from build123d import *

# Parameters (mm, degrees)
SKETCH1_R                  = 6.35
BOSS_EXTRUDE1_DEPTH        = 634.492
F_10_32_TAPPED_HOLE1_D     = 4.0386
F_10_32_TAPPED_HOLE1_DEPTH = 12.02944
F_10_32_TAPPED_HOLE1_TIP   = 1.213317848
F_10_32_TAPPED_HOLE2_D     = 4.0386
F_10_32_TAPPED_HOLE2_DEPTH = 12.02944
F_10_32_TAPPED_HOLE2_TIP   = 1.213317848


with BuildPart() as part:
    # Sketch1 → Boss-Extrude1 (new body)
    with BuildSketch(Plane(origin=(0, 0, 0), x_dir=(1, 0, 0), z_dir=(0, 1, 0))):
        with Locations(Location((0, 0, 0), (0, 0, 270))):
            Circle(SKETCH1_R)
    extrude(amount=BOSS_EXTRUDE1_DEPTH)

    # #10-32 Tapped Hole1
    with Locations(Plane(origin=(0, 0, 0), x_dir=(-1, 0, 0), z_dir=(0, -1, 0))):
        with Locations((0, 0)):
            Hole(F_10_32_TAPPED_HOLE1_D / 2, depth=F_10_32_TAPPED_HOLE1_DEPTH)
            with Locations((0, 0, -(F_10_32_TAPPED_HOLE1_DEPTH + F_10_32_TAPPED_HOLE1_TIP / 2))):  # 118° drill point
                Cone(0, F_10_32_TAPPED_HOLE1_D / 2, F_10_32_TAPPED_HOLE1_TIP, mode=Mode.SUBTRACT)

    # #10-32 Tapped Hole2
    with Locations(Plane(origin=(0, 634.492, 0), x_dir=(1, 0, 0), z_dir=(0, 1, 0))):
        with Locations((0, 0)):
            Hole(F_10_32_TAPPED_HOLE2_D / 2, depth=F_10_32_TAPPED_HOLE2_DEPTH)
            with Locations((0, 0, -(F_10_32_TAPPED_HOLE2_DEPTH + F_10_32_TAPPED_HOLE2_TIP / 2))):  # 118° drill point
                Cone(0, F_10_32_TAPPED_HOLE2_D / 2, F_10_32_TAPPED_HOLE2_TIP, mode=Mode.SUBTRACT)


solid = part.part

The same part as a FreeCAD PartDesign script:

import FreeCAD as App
import Part
import Sketcher
from FreeCAD import Vector
Q = App.Units.Quantity

doc = App.newDocument("Part")
body = doc.addObject("PartDesign::Body", "Body")

# Sketch on XZ plane
sketch1 = body.newObject("Sketcher::SketchObject", "Sketch")
sketch1.AttachmentSupport = (doc.getObject("XZ_Plane"), [""])
sketch1.MapMode = "FlatFace"
sketch1.addGeometry(Part.Circle(Vector(0, 0, 0), Vector(0, 0, 1), 6), False)
sketch1.addConstraint([
    Sketcher.Constraint("Coincident", 0, 3, -1, 1),
    Sketcher.Constraint("Diameter", 0, Q("0.5 in")),
])
pad1 = body.newObject("PartDesign::Pad", "Pad")
pad1.Profile = sketch1
pad1.Length = Q("24.98 in")
pad1.Reversed = True

# Sketch on XZ plane
sketch2 = body.newObject("Sketcher::SketchObject", "Sketch001")
sketch2.AttachmentSupport = (doc.getObject("XZ_Plane"), [""])
sketch2.MapMode = "FlatFace"
sketch2.addGeometry(Part.Circle(Vector(0, 0, 0), Vector(0, 0, 1), 2), False)
sketch2.addConstraint([
    Sketcher.Constraint("Coincident", 0, 3, -1, 1),
    Sketcher.Constraint("Diameter", 0, Q("0.159 in")),
])
doc.recompute()
hole = body.newObject("PartDesign::Hole", "Hole")
hole.Profile = sketch2
hole.ThreadType = "None"
hole.Diameter = Q("0.159 in")
hole.DepthType = "Dimension"
hole.Depth = Q("0.4736 in")
hole.DrillPoint = "Angled"
hole.DrillPointAngle = 118

# Sketch on XZ plane
sketch3 = body.newObject("Sketcher::SketchObject", "Sketch002")
sketch3.AttachmentSupport = (doc.getObject("XZ_Plane"), [""])
sketch3.MapMode = "FlatFace"
sketch3.AttachmentOffset = App.Placement(Vector(0, 0, -24.98 * 25.4), App.Rotation())
sketch3.addGeometry(Part.Circle(Vector(0, 0, 0), Vector(0, 0, 1), 2), False)
sketch3.addConstraint([
    Sketcher.Constraint("Coincident", 0, 3, -1, 1),
    Sketcher.Constraint("Diameter", 0, Q("0.159 in")),
])
doc.recompute()
hole2 = body.newObject("PartDesign::Hole", "Hole001")
hole2.Profile = sketch3
hole2.ThreadType = "None"
hole2.Diameter = Q("0.159 in")
hole2.DepthType = "Dimension"
hole2.Depth = Q("0.4736 in")
hole2.DrillPoint = "Angled"
hole2.DrillPointAngle = 118
hole2.Reversed = True

doc.recompute()
